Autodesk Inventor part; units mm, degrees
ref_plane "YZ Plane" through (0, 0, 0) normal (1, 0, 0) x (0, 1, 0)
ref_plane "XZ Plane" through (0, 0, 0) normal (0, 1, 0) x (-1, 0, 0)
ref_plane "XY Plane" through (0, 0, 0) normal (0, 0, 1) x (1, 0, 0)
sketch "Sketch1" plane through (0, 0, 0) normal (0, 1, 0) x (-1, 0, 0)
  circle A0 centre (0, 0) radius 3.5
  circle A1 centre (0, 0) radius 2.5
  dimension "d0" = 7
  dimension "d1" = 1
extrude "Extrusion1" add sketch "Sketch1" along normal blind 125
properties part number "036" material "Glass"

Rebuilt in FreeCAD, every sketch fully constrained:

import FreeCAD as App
import Part
import Sketcher
from FreeCAD import Vector

doc = App.newDocument("Part")
body = doc.addObject("PartDesign::Body", "Body")

# Sketch on XZ plane
sketch1 = doc.addObject("Sketcher::SketchObject", "Sketch")
body.addObject(sketch1)
sketch1.AttachmentSupport = (doc.XZ_Plane, [""])
sketch1.MapMode = "FlatFace"
sketch1.addGeometry([
    Part.Circle(Vector(0, 0, 0), Vector(0, 0, 1), 3.5),
    Part.Circle(Vector(0, 0, 0), Vector(0, 0, 1), 2.5),
], False)
sketch1.addConstraint([
    Sketcher.Constraint("Coincident", 0, 3, -1, 1),
    Sketcher.Constraint("Coincident", 1, 3, -1, 1),
    Sketcher.Constraint("Diameter", 0, 7.0),
    Sketcher.Constraint("Diameter", 1, 5.0),
])
pad1 = doc.addObject("PartDesign::Pad", "Pad")
body.addObject(pad1)
pad1.Profile = sketch1
pad1.Length = 125
pad1.Reversed = True

doc.recompute()
